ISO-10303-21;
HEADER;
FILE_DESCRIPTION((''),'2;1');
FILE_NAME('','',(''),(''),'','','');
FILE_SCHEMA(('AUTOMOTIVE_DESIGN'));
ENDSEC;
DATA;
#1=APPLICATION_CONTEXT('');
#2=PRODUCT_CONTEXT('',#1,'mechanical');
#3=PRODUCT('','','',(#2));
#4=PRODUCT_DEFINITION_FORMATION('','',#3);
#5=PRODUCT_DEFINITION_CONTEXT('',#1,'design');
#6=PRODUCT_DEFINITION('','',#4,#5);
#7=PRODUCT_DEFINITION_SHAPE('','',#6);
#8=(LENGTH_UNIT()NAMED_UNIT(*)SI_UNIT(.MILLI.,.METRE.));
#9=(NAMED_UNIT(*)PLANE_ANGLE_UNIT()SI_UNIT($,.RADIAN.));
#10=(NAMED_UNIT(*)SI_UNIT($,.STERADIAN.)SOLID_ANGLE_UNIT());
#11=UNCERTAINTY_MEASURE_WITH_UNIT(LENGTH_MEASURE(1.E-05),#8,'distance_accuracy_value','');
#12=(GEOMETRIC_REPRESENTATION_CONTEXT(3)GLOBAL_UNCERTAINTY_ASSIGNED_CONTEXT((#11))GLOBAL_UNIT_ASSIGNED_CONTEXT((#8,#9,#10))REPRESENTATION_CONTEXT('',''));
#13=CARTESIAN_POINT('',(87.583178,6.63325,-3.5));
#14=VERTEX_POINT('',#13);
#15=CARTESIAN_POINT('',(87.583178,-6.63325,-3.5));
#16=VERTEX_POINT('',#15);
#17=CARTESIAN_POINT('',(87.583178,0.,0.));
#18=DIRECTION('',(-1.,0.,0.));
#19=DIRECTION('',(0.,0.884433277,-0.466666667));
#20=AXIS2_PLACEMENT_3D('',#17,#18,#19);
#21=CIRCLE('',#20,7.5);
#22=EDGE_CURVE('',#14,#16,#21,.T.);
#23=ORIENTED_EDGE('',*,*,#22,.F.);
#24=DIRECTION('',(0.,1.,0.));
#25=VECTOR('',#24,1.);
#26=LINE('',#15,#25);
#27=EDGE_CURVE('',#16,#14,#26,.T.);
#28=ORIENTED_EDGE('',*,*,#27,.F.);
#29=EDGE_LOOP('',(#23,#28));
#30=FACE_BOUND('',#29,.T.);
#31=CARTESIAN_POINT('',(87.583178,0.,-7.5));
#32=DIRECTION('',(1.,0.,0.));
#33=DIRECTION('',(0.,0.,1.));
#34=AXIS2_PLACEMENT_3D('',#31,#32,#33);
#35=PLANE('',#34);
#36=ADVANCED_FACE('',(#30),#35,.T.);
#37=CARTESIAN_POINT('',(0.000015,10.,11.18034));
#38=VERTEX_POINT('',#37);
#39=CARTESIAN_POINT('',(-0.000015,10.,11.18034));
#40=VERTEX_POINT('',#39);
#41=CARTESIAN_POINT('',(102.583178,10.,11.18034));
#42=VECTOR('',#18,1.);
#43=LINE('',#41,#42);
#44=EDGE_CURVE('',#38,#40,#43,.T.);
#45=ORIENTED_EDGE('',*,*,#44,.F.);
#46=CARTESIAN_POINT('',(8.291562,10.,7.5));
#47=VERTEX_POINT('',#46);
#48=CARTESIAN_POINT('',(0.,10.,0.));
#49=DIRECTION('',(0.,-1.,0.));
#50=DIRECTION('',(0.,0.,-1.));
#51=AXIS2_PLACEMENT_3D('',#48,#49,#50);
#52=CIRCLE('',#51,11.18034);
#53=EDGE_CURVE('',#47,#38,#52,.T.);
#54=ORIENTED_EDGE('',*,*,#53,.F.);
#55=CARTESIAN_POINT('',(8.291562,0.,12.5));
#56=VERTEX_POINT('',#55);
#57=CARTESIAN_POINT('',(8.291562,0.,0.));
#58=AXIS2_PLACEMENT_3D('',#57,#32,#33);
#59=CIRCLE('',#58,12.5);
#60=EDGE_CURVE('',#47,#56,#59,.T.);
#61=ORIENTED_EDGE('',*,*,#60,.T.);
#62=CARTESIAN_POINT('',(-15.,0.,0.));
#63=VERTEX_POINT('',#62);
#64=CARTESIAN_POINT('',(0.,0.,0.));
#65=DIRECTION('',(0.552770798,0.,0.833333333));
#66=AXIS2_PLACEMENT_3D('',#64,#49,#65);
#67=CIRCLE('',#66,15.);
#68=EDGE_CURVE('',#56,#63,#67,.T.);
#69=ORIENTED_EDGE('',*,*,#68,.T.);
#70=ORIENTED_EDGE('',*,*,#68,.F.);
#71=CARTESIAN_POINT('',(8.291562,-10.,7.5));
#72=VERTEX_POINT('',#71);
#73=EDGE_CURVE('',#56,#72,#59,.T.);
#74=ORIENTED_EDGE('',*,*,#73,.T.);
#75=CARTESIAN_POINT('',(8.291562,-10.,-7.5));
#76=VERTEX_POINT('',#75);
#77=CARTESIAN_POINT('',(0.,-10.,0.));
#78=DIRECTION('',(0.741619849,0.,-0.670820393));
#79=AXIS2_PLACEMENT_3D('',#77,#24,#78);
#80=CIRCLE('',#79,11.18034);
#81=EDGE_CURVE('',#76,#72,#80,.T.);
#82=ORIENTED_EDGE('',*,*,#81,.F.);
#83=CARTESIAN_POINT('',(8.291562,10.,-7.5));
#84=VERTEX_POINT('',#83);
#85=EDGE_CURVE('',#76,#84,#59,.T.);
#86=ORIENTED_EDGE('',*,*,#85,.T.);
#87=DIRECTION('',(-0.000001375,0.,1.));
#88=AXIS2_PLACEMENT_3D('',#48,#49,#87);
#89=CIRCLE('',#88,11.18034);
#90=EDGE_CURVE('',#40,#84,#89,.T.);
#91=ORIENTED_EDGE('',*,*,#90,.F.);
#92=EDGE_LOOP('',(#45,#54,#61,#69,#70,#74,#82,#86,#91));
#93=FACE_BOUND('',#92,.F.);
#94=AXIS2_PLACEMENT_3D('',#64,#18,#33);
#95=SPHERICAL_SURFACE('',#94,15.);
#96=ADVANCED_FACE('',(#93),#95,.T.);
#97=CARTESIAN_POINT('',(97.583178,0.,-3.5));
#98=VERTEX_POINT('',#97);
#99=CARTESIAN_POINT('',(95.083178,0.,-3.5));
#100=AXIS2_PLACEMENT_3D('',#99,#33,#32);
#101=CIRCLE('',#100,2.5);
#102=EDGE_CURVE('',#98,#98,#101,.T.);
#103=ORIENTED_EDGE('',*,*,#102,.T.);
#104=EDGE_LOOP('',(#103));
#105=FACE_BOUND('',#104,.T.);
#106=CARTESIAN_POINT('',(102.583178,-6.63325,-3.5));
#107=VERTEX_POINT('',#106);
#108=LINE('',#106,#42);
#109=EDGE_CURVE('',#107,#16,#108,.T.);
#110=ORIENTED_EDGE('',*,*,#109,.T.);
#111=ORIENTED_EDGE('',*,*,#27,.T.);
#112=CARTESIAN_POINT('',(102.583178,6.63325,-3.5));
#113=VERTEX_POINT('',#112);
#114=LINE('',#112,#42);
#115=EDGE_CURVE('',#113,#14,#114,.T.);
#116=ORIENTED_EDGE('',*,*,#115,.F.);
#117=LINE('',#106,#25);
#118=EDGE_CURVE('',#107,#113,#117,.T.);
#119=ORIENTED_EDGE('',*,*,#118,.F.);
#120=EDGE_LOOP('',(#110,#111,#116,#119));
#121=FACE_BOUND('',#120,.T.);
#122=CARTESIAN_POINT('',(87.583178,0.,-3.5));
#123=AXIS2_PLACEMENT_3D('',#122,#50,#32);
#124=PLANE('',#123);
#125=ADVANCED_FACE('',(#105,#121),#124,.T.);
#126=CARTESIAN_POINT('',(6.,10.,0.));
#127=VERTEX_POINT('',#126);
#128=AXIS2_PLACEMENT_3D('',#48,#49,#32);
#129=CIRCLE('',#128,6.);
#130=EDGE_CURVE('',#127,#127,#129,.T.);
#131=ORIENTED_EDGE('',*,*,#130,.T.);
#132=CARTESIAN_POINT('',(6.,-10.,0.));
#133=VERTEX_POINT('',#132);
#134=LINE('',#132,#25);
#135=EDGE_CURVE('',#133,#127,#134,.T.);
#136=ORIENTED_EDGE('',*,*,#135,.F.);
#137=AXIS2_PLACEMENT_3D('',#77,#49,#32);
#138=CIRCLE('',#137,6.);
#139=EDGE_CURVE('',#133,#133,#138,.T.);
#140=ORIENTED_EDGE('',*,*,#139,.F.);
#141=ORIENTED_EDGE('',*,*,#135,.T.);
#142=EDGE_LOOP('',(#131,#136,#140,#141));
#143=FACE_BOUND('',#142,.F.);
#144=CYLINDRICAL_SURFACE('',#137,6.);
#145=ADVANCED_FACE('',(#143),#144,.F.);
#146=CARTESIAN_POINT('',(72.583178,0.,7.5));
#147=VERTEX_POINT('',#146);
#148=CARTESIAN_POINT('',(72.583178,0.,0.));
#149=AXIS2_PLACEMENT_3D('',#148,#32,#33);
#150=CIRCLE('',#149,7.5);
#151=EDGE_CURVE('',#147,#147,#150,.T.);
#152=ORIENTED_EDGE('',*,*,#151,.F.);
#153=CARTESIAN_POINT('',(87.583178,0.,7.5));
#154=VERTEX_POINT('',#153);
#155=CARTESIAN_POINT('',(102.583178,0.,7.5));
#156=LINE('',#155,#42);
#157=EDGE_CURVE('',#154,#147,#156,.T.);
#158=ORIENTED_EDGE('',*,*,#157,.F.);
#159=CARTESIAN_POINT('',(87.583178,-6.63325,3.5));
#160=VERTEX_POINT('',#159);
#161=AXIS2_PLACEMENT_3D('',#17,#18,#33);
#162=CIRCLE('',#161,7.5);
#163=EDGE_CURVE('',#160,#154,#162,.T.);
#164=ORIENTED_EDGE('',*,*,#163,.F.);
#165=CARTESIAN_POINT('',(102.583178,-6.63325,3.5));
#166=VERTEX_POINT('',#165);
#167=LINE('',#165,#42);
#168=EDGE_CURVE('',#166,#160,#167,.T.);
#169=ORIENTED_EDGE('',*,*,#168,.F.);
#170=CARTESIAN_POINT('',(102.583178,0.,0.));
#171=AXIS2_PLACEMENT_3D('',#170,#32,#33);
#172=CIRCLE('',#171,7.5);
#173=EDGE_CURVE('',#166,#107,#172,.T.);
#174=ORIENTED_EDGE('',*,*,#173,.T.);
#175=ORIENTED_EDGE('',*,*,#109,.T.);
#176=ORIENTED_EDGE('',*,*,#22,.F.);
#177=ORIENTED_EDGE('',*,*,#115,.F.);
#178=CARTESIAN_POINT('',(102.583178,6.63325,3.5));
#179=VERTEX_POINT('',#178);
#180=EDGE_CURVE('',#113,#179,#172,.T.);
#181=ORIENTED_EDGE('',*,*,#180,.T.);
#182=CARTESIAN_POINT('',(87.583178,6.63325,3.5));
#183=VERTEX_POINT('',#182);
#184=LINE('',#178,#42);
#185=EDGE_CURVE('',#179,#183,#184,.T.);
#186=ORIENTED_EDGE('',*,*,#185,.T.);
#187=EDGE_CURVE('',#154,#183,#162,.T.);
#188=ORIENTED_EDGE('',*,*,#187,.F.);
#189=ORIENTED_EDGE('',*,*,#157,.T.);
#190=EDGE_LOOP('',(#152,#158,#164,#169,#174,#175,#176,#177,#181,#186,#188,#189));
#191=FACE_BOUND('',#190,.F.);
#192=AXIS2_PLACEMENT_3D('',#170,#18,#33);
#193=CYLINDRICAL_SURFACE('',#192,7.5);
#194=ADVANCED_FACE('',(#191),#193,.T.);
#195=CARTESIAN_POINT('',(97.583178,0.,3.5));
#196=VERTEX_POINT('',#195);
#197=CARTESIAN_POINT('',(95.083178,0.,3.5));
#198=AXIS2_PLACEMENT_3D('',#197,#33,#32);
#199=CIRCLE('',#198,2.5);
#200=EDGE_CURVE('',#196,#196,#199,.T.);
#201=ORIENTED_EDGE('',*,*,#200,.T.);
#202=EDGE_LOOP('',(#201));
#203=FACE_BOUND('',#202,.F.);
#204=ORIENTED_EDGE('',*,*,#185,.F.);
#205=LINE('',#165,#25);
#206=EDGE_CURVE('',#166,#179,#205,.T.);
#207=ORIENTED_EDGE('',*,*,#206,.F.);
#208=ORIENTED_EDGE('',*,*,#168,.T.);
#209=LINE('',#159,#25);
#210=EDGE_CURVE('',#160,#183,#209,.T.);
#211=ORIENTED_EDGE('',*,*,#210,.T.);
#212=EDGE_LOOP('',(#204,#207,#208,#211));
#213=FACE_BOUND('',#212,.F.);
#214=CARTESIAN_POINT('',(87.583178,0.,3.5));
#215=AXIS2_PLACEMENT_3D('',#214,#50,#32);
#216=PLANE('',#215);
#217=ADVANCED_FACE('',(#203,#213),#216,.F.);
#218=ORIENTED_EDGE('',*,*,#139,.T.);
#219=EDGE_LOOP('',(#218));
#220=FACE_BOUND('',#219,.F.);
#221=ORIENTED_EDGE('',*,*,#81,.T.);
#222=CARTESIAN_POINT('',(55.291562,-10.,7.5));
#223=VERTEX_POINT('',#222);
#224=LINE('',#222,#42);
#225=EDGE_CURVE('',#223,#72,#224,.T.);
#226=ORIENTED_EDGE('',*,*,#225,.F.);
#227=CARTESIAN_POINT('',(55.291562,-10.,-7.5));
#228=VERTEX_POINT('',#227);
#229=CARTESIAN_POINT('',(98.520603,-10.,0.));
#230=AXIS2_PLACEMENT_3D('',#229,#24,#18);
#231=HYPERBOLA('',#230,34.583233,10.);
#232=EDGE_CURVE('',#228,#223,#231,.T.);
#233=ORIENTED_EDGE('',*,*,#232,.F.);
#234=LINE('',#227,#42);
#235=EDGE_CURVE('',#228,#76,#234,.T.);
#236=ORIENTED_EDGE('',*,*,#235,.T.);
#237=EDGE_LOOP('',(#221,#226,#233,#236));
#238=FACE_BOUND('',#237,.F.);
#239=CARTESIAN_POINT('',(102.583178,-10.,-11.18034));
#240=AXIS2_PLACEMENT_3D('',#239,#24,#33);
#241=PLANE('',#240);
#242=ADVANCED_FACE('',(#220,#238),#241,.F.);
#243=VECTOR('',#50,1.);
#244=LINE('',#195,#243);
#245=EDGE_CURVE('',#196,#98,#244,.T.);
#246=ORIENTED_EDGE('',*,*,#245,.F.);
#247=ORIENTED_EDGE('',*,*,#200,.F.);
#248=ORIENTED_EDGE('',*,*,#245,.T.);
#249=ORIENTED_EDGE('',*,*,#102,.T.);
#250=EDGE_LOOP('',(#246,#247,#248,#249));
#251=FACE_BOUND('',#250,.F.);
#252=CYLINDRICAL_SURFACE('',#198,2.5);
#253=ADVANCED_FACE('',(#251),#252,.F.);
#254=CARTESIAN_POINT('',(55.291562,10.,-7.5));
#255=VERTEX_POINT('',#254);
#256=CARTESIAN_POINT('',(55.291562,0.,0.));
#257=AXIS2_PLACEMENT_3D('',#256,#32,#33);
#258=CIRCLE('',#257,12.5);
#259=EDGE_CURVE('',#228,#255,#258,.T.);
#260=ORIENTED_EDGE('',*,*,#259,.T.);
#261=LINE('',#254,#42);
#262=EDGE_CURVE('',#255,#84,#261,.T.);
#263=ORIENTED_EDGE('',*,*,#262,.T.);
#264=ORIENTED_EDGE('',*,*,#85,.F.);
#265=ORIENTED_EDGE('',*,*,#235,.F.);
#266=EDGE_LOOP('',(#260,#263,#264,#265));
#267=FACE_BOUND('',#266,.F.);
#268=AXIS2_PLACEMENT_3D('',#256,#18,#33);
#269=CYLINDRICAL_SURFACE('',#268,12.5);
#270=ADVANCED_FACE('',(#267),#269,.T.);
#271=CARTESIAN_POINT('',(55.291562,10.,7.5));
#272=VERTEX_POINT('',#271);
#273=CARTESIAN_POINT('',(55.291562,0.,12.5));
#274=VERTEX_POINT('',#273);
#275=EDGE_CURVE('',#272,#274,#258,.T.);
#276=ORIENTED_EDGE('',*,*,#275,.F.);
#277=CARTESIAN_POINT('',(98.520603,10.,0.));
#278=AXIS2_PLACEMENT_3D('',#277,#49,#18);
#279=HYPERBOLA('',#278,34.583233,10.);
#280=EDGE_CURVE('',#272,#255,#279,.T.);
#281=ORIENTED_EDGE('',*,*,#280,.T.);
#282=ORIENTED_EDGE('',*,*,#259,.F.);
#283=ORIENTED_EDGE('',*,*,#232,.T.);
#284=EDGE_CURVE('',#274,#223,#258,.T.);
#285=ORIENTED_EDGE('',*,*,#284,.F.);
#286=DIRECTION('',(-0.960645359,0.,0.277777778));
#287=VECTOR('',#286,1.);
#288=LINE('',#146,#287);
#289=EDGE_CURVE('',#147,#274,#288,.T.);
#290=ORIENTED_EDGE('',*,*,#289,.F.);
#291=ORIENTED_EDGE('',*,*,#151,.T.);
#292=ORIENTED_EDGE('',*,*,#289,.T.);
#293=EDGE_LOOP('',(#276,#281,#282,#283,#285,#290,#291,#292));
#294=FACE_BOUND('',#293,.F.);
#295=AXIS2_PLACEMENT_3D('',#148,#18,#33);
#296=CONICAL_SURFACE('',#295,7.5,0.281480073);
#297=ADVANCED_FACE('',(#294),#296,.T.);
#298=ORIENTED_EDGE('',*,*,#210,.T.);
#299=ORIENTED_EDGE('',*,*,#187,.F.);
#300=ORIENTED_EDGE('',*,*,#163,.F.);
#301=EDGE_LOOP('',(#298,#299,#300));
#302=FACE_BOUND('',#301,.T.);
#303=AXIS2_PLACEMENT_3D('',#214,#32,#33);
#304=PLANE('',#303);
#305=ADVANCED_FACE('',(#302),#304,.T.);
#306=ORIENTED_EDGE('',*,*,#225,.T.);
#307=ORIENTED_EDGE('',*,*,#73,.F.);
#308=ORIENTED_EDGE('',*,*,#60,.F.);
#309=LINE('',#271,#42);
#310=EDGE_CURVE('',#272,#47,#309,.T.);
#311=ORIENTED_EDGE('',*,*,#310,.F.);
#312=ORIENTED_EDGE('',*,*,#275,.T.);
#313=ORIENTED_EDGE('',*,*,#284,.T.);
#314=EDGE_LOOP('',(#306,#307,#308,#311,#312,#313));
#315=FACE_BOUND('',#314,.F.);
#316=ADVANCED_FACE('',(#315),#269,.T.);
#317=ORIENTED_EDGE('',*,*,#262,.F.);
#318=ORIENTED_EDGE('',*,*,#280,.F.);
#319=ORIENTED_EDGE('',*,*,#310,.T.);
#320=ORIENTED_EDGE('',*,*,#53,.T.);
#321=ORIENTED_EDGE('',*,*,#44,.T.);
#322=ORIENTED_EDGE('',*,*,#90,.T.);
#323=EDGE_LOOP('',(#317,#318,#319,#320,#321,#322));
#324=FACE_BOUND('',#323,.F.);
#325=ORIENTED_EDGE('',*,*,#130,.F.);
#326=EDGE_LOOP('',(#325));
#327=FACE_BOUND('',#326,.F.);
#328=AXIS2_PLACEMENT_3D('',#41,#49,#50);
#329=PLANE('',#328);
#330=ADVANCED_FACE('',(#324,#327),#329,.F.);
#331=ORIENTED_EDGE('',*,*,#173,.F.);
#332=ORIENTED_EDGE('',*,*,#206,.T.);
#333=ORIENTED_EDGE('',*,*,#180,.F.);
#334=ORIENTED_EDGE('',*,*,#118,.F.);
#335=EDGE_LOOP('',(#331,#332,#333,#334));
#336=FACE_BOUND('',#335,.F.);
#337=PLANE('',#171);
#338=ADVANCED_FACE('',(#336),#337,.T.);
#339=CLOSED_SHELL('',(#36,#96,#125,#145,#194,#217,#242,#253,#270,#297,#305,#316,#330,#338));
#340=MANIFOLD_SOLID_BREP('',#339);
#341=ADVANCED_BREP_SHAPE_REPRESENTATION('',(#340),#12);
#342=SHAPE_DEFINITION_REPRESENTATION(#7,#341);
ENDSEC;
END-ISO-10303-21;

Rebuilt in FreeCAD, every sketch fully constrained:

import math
import FreeCAD as App
import Part
import Sketcher
from FreeCAD import Vector


def add_polygon(sketch, points):
    """Adds a closed chain of lines whose ends are joined by coincident constraints."""
    first, n = sketch.GeometryCount, len(points)
    for a, b in zip(points, points[1:] + points[:1]):
        sketch.addGeometry(Part.LineSegment(App.Vector(*a, 0), App.Vector(*b, 0)), False)
    for i in range(n):
        sketch.addConstraint(Sketcher.Constraint("Coincident", first + i, 2, first + (i + 1) % n, 1))

doc = App.newDocument("Part")
body = doc.addObject("PartDesign::Body", "Body")

# Sketch on XZ plane
sketch1 = doc.addObject("Sketcher::SketchObject", "Sketch")
body.addObject(sketch1)
sketch1.AttachmentSupport = (doc.XZ_Plane, [""])
sketch1.MapMode = "FlatFace"
sketch1.addGeometry([
    Part.ArcOfCircle(Part.Circle(Vector(0, 0, 0), Vector(0, 0, 1), 15), math.radians(56), math.radians(180)),  # 0
    Part.LineSegment(Vector(-15, 0, 0), Vector(103, 0, 0)),  # 1
    Part.LineSegment(Vector(103, 0, 0), Vector(103, 8, 0)),  # 2
    Part.LineSegment(Vector(103, 8, 0), Vector(73, 8, 0)),  # 3
    Part.LineSegment(Vector(73, 8, 0), Vector(55, 12, 0)),  # 4
    Part.LineSegment(Vector(55, 12, 0), Vector(8, 12, 0)),  # 5
], False)
sketch1.addConstraint([
    Sketcher.Constraint("Coincident", 0, 2, 1, 1),
    Sketcher.Constraint("Coincident", 1, 2, 2, 1),
    Sketcher.Constraint("Coincident", 2, 2, 3, 1),
    Sketcher.Constraint("Coincident", 3, 2, 4, 1),
    Sketcher.Constraint("Coincident", 4, 2, 5, 1),
    Sketcher.Constraint("Coincident", 5, 2, 0, 1),
    Sketcher.Constraint("Horizontal", 1),
    Sketcher.Constraint("Vertical", 2),
    Sketcher.Constraint("Horizontal", 3),
    Sketcher.Constraint("Horizontal", 5),
    Sketcher.Constraint("Coincident", 0, 3, -1, 1),
    Sketcher.Constraint("PointOnObject", 0, 2, -1),
    Sketcher.Constraint("Radius", 0, 15.0),
    Sketcher.Constraint("DistanceX", 3, 2, 3, 1, 30.0),
    Sketcher.Constraint("DistanceX", 5, 2, 5, 1, 47.0),
    Sketcher.Constraint("Distance", 4, 18.0),
    Sketcher.Constraint("DistanceY", 2, 1, 2, 2, 7.5),
    Sketcher.Constraint("DistanceY", 3, 2, 4, 2, 5.0),
])
revolution = doc.addObject("PartDesign::Revolution", "Revolution")
body.addObject(revolution)
revolution.Profile = sketch1
revolution.ReferenceAxis = (sketch1, ["H_Axis"])
revolution.Angle = 360

# Sketch on XZ plane
sketch2 = doc.addObject("Sketcher::SketchObject", "Sketch001")
body.addObject(sketch2)
sketch2.AttachmentSupport = (doc.XZ_Plane, [""])
sketch2.MapMode = "FlatFace"
add_polygon(sketch2, [(87.6, 7.5), (87.6, 3.5), (102.6, 3.5), (102.6, 7.5)])  # lines 0-3
add_polygon(sketch2, [(87.6, -3.5), (87.6, -7.5), (102.6, -7.5), (102.6, -3.5)])  # lines 4-7
sketch2.addConstraint([
    Sketcher.Constraint("Vertical", 0),
    Sketcher.Constraint("Horizontal", 1),
    Sketcher.Constraint("Vertical", 2),
    Sketcher.Constraint("Horizontal", 3),
    Sketcher.Constraint("Vertical", 4),
    Sketcher.Constraint("Horizontal", 5),
    Sketcher.Constraint("Vertical", 6),
    Sketcher.Constraint("Horizontal", 7),
    Sketcher.Constraint("Symmetric", 3, 2, 4, 2, -1),
    Sketcher.Constraint("Symmetric", 1, 2, 6, 2, -1),
    Sketcher.Constraint("DistanceX", 1, 1, 1, 2, 15.0),
    Sketcher.Constraint("DistanceY", 0, 2, 0, 1, 4.0),
    Sketcher.Constraint("DistanceY", 4, 2, 0, 2, 11.0),
    Sketcher.Constraint("DistanceX", -1, 1, 0, 2, 87.583178),
])
pocket1 = doc.addObject("PartDesign::Pocket", "Pocket")
body.addObject(pocket1)
pocket1.Profile = sketch2
pocket1.Type = "ThroughAll"
pocket1.Midplane = True

# Sketch on YZ plane
sketch3 = doc.addObject("Sketcher::SketchObject", "Sketch002")
body.addObject(sketch3)
sketch3.AttachmentSupport = (doc.YZ_Plane, [""])
sketch3.MapMode = "FlatFace"
sketch3.AttachmentOffset = App.Placement(Vector(0, 0, 102.583178), App.Rotation())
sketch3.addGeometry([
    Part.LineSegment(Vector(-10, -11, 0), Vector(-10, 11, 0)),
    Part.ArcOfCircle(Part.Circle(Vector(0, 0, 0), Vector(0, 0, 1), 15), math.radians(132), math.radians(228)),
    Part.ArcOfCircle(Part.Circle(Vector(0, 0, 0), Vector(0, 0, 1), 15), math.radians(-48), math.radians(48)),
    Part.LineSegment(Vector(10, 11, 0), Vector(10, -11, 0)),
], False)
sketch3.addConstraint([
    Sketcher.Constraint("Coincident", 0, 1, 1, 2),
    Sketcher.Constraint("Coincident", 1, 1, 0, 2),
    Sketcher.Constraint("Coincident", 2, 1, 3, 2),
    Sketcher.Constraint("Coincident", 3, 1, 2, 2),
    Sketcher.Constraint("Vertical", 0),
    Sketcher.Constraint("Vertical", 3),
    Sketcher.Constraint("Coincident", 1, 3, -1, 1),
    Sketcher.Constraint("Coincident", 2, 3, -1, 1),
    Sketcher.Constraint("Equal", 1, 2),
    Sketcher.Constraint("Horizontal", 0, 1, 2, 1),
    Sketcher.Constraint("Radius", 1, 15.0),
    Sketcher.Constraint("DistanceX", 0, 1, -1, 1, 10.0),
])
pocket2 = doc.addObject("PartDesign::Pocket", "Pocket001")
body.addObject(pocket2)
pocket2.Profile = sketch3
pocket2.Type = "ThroughAll"

# Sketch on XZ plane
sketch4 = doc.addObject("Sketcher::SketchObject", "Sketch003")
body.addObject(sketch4)
sketch4.AttachmentSupport = (doc.XZ_Plane, [""])
sketch4.MapMode = "FlatFace"
sketch4.AttachmentOffset = App.Placement(Vector(0, 0, 10), App.Rotation())
sketch4.addGeometry(Part.Circle(Vector(0, 0, 0), Vector(0, 0, 1), 6), False)
sketch4.addConstraint([
    Sketcher.Constraint("Coincident", 0, 3, -1, 1),
    Sketcher.Constraint("Diameter", 0, 12.0),
])
pocket3 = doc.addObject("PartDesign::Pocket", "Pocket002")
body.addObject(pocket3)
pocket3.Profile = sketch4
pocket3.Type = "ThroughAll"

# Sketch on XY plane
sketch5 = doc.addObject("Sketcher::SketchObject", "Sketch004")
body.addObject(sketch5)
sketch5.AttachmentSupport = (doc.XY_Plane, [""])
sketch5.MapMode = "FlatFace"
sketch5.AttachmentOffset = App.Placement(Vector(0, 0, 3.5), App.Rotation())
sketch5.addGeometry(Part.Circle(Vector(95.1, 0, 0), Vector(0, 0, 1), 2.5), False)
sketch5.addConstraint([
    Sketcher.Constraint("PointOnObject", 0, 3, -1),
    Sketcher.Constraint("Diameter", 0, 5.0),
    Sketcher.Constraint("DistanceX", -1, 1, 0, 3, 95.083178),
])
pocket4 = doc.addObject("PartDesign::Pocket", "Pocket003")
body.addObject(pocket4)
pocket4.Profile = sketch5
pocket4.Type = "ThroughAll"

doc.recompute()
